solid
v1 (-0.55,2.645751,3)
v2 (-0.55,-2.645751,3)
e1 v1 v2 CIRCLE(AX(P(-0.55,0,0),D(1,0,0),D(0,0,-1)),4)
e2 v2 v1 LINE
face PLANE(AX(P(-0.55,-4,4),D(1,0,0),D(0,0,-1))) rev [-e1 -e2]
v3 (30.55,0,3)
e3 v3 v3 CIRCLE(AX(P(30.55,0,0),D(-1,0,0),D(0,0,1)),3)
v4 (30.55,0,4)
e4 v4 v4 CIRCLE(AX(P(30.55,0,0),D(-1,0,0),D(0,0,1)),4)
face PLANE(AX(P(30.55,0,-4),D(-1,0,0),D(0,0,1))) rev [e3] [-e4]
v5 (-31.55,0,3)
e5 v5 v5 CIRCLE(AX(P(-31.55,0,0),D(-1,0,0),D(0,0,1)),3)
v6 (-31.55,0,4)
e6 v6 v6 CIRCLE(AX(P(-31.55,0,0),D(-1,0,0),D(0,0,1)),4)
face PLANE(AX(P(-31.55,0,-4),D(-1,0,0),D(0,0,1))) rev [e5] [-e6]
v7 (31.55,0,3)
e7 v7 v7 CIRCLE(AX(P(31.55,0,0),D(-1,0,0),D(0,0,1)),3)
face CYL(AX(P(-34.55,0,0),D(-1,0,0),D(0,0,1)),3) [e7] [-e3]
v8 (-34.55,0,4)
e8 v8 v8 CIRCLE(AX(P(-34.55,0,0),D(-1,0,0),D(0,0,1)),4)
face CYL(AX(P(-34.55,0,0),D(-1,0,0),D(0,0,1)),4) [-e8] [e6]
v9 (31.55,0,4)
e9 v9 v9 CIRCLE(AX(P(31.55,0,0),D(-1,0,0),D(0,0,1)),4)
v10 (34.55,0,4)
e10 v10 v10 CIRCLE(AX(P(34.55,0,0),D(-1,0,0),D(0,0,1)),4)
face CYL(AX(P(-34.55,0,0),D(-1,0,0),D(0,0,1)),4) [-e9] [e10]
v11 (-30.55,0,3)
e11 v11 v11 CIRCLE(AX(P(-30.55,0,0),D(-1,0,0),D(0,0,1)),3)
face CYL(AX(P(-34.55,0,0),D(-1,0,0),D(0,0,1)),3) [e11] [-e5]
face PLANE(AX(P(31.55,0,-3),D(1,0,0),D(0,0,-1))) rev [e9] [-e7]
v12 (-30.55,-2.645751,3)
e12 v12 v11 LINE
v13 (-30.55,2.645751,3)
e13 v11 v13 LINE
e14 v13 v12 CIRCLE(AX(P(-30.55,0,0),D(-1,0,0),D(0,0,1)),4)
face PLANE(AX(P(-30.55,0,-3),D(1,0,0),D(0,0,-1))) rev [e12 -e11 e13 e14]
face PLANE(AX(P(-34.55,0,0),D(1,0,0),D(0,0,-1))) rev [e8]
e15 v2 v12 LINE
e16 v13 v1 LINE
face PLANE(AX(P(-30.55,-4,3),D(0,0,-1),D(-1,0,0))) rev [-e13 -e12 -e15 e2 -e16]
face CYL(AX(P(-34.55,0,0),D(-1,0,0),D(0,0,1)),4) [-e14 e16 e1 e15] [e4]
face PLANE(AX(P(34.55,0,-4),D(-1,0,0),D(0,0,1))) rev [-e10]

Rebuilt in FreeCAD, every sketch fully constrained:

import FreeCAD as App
import Part
import Sketcher

V = App.Vector

doc = App.newDocument("Part")
body = doc.addObject("PartDesign::Body", "Body")

sketch1 = body.newObject("Sketcher::SketchObject", "Sketch")
sketch1.AttachmentSupport = (doc.getObject("XZ_Plane"), [""])
sketch1.MapMode = "FlatFace"
sketch1.addGeometry([
    Part.LineSegment(V(-34.5, -4, 0), V(-34.5, 0, 0)),
    Part.LineSegment(V(-34.5, 0, 0), V(34.5, 0, 0)),
    Part.LineSegment(V(34.5, 0, 0), V(34.5, -4, 0)),
    Part.LineSegment(V(34.5, -4, 0), V(31.6, -4, 0)),
    Part.LineSegment(V(31.6, -4, 0), V(31.6, -3, 0)),
    Part.LineSegment(V(31.6, -3, 0), V(30.6, -3, 0)),
    Part.LineSegment(V(30.6, -3, 0), V(30.6, -4, 0)),
    Part.LineSegment(V(30.6, -4, 0), V(-30.6, -4, 0)),
    Part.LineSegment(V(-30.6, -4, 0), V(-30.6, -3, 0)),
    Part.LineSegment(V(-30.6, -3, 0), V(-31.6, -3, 0)),
    Part.LineSegment(V(-31.6, -3, 0), V(-31.6, -4, 0)),
    Part.LineSegment(V(-31.6, -4, 0), V(-34.5, -4, 0)),
], False)
sketch1.addConstraint([
    Sketcher.Constraint("Coincident", 0, 2, 1, 1),
    Sketcher.Constraint("Coincident", 1, 2, 2, 1),
    Sketcher.Constraint("Coincident", 2, 2, 3, 1),
    Sketcher.Constraint("Coincident", 3, 2, 4, 1),
    Sketcher.Constraint("Coincident", 4, 2, 5, 1),
    Sketcher.Constraint("Coincident", 5, 2, 6, 1),
    Sketcher.Constraint("Coincident", 6, 2, 7, 1),
    Sketcher.Constraint("Coincident", 7, 2, 8, 1),
    Sketcher.Constraint("Coincident", 8, 2, 9, 1),
    Sketcher.Constraint("Coincident", 9, 2, 10, 1),
    Sketcher.Constraint("Coincident", 10, 2, 11, 1),
    Sketcher.Constraint("Coincident", 11, 2, 0, 1),
    Sketcher.Constraint("Vertical", 0),
    Sketcher.Constraint("Horizontal", 1),
    Sketcher.Constraint("Vertical", 2),
    Sketcher.Constraint("Horizontal", 3),
    Sketcher.Constraint("Vertical", 4),
    Sketcher.Constraint("Horizontal", 5),
    Sketcher.Constraint("Vertical", 6),
    Sketcher.Constraint("Horizontal", 7),
    Sketcher.Constraint("Vertical", 8),
    Sketcher.Constraint("Horizontal", 9),
    Sketcher.Constraint("Vertical", 10),
    Sketcher.Constraint("Horizontal", 11),
    Sketcher.Constraint("Symmetric", 0, 2, 1, 2, -1, 1),
    Sketcher.Constraint("Symmetric", 5, 2, 8, 2, -2),
    Sketcher.Constraint("Symmetric", 3, 2, 10, 2, -2),
    Sketcher.Constraint("Horizontal", 3, 2, 6, 2),
    Sketcher.Constraint("Equal", 9, 4),
    Sketcher.Constraint("DistanceX", 3, 2, 3, 1, 3.0),
    Sketcher.Constraint("DistanceX", 5, 2, 5, 1, 1.0),
    Sketcher.Constraint("DistanceY", 0, 1, 0, 2, 4.0),
    Sketcher.Constraint("DistanceX", 1, 1, 1, 2, 69.1),
])
revolution = body.newObject("PartDesign::Revolution", "Revolution")
revolution.Profile = sketch1
revolution.ReferenceAxis = (sketch1, ["H_Axis"])
revolution.Angle = 360

sketch2 = body.newObject("Sketcher::SketchObject", "Sketch001")
sketch2.AttachmentSupport = (doc.getObject("XZ_Plane"), [""])
sketch2.MapMode = "FlatFace"
sketch2.addGeometry([
    Part.LineSegment(V(-30.6, 3, 0), V(-30.6, 4, 0)),
    Part.LineSegment(V(-30.6, 4, 0), V(-0.6, 4, 0)),
    Part.LineSegment(V(-0.6, 4, 0), V(-0.6, 3, 0)),
    Part.LineSegment(V(-0.6, 3, 0), V(-30.6, 3, 0)),
], False)
sketch2.addConstraint([
    Sketcher.Constraint("Coincident", 0, 2, 1, 1),
    Sketcher.Constraint("Coincident", 1, 2, 2, 1),
    Sketcher.Constraint("Coincident", 2, 2, 3, 1),
    Sketcher.Constraint("Coincident", 3, 2, 0, 1),
    Sketcher.Constraint("Vertical", 0),
    Sketcher.Constraint("Horizontal", 1),
    Sketcher.Constraint("Vertical", 2),
    Sketcher.Constraint("Horizontal", 3),
    Sketcher.Constraint("DistanceX", 1, 1, 1, 2, 30.0),
    Sketcher.Constraint("DistanceY", 0, 1, 0, 2, 1.0),
    Sketcher.Constraint("DistanceY", -1, 1, 0, 2, 4.0),
    Sketcher.Constraint("DistanceX", 0, 2, -1, 1, 30.55),
])
pocket1 = body.newObject("PartDesign::Pocket", "Pocket")
pocket1.Profile = sketch2
pocket1.Type = "ThroughAll"
pocket1.Midplane = True

doc.recompute()
